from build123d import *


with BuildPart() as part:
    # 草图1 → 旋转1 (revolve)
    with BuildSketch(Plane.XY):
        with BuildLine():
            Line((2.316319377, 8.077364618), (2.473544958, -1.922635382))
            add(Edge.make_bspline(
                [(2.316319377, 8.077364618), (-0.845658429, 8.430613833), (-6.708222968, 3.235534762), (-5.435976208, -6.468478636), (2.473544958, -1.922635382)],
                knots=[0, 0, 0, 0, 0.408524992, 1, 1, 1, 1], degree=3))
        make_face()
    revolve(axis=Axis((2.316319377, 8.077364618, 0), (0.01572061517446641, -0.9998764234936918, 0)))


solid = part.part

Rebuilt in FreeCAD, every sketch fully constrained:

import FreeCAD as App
import Part
import Sketcher
from FreeCAD import Vector

doc = App.newDocument("Part")
body = doc.addObject("PartDesign::Body", "Body")

sketch1 = doc.addObject("Sketcher::SketchObject", "Sketch")
body.addObject(sketch1)
sketch1.AttachmentSupport = (doc.XY_Plane, [""])
sketch1.MapMode = "FlatFace"
sketch1.addGeometry(Part.LineSegment(Vector(2.473545, -1.922635, 0), Vector(2.316319, 8.077365, 0)), False)
sketch1.addGeometry(Part.BSplineCurve([Vector(2.316319, 8.077365, 0), Vector(-0.845658, 8.430614, 0), Vector(-6.708223, 3.235535, 0), Vector(-5.435976, -6.468479, 0), Vector(2.473545, -1.922635, 0)], [4, 1, 4], [0, 0.408524992, 1], False, 3, [1, 1, 1, 1, 1], False), False)
sketch1.addGeometry(Part.LineSegment(Vector(2.316319, 8.077365, 0), Vector(2.473545, -1.922635, 0)), True)
sketch1.addConstraint(Sketcher.Constraint("Block", 1))
sketch1.addConstraint(Sketcher.Constraint("Coincident", 0, 1, 1, 2))
sketch1.addConstraint(Sketcher.Constraint("Coincident", 1, 1, 0, 2))
sketch1.addConstraint(Sketcher.Constraint("Coincident", 2, 2, 0, 1))
sketch1.addConstraint(Sketcher.Constraint("Parallel", 0, 2))
sketch1.addConstraint(Sketcher.Constraint("Equal", 0, 2))
revolution = doc.addObject("PartDesign::Revolution", "Revolution")
body.addObject(revolution)
revolution.Profile = sketch1
revolution.ReferenceAxis = (sketch1, ["Axis0"])
revolution.Angle = 360

doc.recompute()
